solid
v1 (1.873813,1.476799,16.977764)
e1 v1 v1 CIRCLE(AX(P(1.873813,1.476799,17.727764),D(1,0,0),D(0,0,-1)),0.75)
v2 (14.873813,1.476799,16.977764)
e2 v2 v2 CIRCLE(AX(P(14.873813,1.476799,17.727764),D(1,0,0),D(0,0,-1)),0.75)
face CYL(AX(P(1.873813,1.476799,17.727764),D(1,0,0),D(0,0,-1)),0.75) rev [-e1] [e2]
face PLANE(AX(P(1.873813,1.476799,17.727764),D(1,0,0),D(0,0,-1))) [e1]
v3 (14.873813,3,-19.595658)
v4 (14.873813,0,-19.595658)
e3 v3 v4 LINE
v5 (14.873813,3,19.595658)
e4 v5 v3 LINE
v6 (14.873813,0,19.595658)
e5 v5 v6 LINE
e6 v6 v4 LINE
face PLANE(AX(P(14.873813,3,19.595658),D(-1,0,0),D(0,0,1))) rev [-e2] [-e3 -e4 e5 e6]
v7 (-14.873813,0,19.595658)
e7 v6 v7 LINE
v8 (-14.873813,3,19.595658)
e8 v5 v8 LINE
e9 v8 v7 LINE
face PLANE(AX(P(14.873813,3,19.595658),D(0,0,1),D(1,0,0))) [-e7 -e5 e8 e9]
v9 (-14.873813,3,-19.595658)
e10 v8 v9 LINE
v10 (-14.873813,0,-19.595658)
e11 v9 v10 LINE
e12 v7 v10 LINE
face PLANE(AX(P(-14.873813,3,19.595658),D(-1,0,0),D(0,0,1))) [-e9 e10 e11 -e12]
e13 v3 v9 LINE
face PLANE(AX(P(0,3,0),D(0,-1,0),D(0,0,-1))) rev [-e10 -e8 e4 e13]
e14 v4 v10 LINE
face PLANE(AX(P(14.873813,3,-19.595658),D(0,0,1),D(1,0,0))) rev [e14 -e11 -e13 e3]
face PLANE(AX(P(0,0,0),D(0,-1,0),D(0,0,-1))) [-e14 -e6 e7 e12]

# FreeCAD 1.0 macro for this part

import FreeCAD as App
import Part
import Sketcher

V = App.Vector
Q = App.Units.Quantity

doc = App.newDocument("Part")
body = doc.addObject("PartDesign::Body", "Body")

# Sketch on XZ plane
sketch1 = body.newObject("Sketcher::SketchObject", "Sketch")
sketch1.AttachmentSupport = (doc.getObject("XZ_Plane"), [""])
sketch1.MapMode = "FlatFace"
sketch1.addGeometry(Part.LineSegment(V(-15, -20, 0), V(-15, 20, 0)), False)
sketch1.addGeometry(Part.LineSegment(V(-15, 20, 0), V(15, 20, 0)), False)
sketch1.addGeometry(Part.LineSegment(V(15, 20, 0), V(15, -20, 0)), False)
sketch1.addGeometry(Part.LineSegment(V(15, -20, 0), V(-15, -20, 0)), False)
sketch1.addConstraint(Sketcher.Constraint("Coincident", 0, 2, 1, 1))
sketch1.addConstraint(Sketcher.Constraint("Coincident", 1, 2, 2, 1))
sketch1.addConstraint(Sketcher.Constraint("Coincident", 2, 2, 3, 1))
sketch1.addConstraint(Sketcher.Constraint("Coincident", 3, 2, 0, 1))
sketch1.addConstraint(Sketcher.Constraint("Vertical", 0))
sketch1.addConstraint(Sketcher.Constraint("Horizontal", 1))
sketch1.addConstraint(Sketcher.Constraint("Vertical", 2))
sketch1.addConstraint(Sketcher.Constraint("Horizontal", 3))
sketch1.addConstraint(Sketcher.Constraint("Symmetric", 0, 2, 2, 2, -1, 1))
sketch1.addConstraint(Sketcher.Constraint("DistanceX", 1, 1, 1, 2, Q("29.747626 mm")))
sketch1.addConstraint(Sketcher.Constraint("DistanceY", 0, 1, 0, 2, Q("39.191316 mm")))
pad1 = body.newObject("PartDesign::Pad", "Pad")
pad1.Profile = sketch1
pad1.Length = 3
pad1.Reversed = True

# Sketch on YZ plane
sketch2 = body.newObject("Sketcher::SketchObject", "Sketch001")
sketch2.AttachmentSupport = (doc.getObject("YZ_Plane"), [""])
sketch2.MapMode = "FlatFace"
sketch2.AttachmentOffset = App.Placement(V(0, 0, 14.873813), App.Rotation())
sketch2.addGeometry(Part.Circle(V(1.5, 17.7, 0), V(0, 0, 1), 0.8), False)
sketch2.addConstraint(Sketcher.Constraint("Diameter", 0, Q("1.5 mm")))
sketch2.addConstraint(Sketcher.Constraint("DistanceX", -1, 1, 0, 3, Q("1.476799 mm")))
sketch2.addConstraint(Sketcher.Constraint("DistanceY", -1, 1, 0, 3, Q("17.727764 mm")))
pocket1 = body.newObject("PartDesign::Pocket", "Pocket")
pocket1.Profile = sketch2
pocket1.Length = 13

doc.recompute()
